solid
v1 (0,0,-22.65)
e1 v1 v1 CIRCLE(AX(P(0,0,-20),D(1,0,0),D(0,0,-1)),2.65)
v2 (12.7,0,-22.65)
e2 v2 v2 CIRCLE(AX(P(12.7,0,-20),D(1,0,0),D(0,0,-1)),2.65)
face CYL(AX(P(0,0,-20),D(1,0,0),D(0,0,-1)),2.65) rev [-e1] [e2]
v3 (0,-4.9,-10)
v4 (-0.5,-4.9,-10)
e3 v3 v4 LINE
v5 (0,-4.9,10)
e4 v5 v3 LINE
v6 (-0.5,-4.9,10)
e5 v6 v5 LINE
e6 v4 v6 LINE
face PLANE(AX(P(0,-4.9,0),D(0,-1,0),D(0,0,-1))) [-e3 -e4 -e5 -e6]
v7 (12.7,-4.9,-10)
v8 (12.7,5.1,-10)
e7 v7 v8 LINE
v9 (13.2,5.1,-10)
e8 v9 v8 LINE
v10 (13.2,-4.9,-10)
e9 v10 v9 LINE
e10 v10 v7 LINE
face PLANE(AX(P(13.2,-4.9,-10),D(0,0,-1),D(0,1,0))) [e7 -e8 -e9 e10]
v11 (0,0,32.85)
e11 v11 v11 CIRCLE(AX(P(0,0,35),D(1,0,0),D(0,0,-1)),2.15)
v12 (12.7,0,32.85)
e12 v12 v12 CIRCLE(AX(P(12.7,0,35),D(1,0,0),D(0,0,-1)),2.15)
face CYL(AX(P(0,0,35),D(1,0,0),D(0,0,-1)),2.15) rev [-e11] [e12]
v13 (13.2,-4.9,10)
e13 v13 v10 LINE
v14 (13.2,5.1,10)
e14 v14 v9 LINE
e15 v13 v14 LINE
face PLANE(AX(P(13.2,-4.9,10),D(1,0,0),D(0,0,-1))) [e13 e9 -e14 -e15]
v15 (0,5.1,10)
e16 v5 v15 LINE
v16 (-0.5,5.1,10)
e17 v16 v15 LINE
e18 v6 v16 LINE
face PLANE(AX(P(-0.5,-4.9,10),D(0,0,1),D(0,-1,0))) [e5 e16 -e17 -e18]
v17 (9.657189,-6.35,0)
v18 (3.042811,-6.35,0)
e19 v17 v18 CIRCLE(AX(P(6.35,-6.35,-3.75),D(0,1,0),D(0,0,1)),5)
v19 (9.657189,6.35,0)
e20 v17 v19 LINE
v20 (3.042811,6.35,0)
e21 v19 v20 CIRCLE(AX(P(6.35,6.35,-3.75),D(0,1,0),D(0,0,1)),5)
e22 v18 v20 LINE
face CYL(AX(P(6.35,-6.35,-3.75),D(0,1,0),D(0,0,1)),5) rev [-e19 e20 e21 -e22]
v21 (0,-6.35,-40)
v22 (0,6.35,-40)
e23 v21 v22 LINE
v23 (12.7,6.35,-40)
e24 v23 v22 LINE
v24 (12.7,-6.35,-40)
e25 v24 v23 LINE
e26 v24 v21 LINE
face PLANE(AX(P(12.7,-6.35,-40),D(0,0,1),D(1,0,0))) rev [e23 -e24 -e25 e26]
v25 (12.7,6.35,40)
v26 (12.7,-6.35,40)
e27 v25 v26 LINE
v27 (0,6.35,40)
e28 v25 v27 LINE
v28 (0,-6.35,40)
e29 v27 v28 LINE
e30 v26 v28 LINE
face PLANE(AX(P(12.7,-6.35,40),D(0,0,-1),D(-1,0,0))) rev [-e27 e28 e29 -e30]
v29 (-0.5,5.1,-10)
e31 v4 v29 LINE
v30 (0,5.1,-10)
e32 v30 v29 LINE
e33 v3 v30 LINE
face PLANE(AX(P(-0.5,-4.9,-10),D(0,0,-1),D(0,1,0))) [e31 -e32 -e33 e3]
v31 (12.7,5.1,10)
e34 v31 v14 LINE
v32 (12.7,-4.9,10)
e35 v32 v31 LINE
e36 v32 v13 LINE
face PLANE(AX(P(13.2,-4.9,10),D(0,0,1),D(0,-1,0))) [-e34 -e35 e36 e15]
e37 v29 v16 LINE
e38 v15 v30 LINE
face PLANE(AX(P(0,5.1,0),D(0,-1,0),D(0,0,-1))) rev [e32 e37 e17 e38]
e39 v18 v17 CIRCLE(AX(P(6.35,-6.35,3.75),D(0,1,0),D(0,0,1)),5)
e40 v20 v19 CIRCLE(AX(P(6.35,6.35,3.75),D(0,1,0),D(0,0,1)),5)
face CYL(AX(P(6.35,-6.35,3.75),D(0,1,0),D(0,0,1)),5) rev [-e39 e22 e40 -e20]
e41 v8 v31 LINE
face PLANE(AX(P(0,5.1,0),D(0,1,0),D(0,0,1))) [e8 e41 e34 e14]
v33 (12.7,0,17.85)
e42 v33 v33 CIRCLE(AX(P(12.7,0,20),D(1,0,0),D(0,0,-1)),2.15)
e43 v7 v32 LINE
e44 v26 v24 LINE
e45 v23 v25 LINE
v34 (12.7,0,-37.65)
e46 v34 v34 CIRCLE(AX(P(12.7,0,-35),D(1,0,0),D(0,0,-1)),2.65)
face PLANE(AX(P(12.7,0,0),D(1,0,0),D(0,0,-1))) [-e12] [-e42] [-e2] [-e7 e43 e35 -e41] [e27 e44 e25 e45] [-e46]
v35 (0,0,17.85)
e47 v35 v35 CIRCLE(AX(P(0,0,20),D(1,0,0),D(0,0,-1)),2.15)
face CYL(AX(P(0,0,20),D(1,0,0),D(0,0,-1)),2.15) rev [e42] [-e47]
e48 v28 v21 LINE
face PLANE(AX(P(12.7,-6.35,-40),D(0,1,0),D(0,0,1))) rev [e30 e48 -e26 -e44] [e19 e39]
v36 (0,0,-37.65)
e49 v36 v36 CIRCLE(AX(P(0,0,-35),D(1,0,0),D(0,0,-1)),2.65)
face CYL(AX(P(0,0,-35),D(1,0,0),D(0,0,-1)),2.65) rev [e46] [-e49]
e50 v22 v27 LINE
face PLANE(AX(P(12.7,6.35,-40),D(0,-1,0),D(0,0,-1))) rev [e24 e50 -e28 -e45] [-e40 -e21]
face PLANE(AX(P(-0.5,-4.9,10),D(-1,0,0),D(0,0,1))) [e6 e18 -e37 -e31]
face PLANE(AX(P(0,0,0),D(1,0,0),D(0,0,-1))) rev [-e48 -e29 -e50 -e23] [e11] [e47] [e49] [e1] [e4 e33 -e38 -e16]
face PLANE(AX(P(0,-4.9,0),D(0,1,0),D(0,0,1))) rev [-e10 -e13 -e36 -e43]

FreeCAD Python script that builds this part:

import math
import FreeCAD as App
import Part
import Sketcher

V = App.Vector
Q = App.Units.Quantity

doc = App.newDocument("Part")
params = doc.addObject("Spreadsheet::Sheet", "Params")
for row, (alias, value) in enumerate([
    ("sketch1_height", "80 mm"),
    ("sketch1_width", "12.7 mm"),
    ("pad1_length", "12.7 mm"),
    ("sketch2_radius", "5 mm"),
    ("sketch3_diameter", "4.3 mm"),
    ("sketch3_diameter2", "5.3 mm"),
    ("sketch4_height", "20 mm"),
    ("sketch4_width", "0.5 mm"),
    ("pad2_length", "10 mm"),
], start=1):
    params.set(f"A{row}", alias)
    params.set(f"B{row}", "=" + value)
    params.setAlias(f"B{row}", alias)

body = doc.addObject("PartDesign::Body", "Body")

# Sketch on YZ plane
sketch1 = doc.addObject("Sketcher::SketchObject", "Sketch")
body.addObject(sketch1)
sketch1.AttachmentSupport = (doc.YZ_Plane, [""])
sketch1.MapMode = "FlatFace"
sketch1.addGeometry([
    Part.LineSegment(V(6.35, 40, 0), V(-6.35, 40, 0)),
    Part.LineSegment(V(-6.35, 40, 0), V(-6.35, -40, 0)),
    Part.LineSegment(V(-6.35, -40, 0), V(6.35, -40, 0)),
    Part.LineSegment(V(6.35, -40, 0), V(6.35, 40, 0)),
], False)
sketch1.addConstraint([
    Sketcher.Constraint("Coincident", 0, 2, 1, 1),
    Sketcher.Constraint("Coincident", 1, 2, 2, 1),
    Sketcher.Constraint("Coincident", 2, 2, 3, 1),
    Sketcher.Constraint("Coincident", 3, 2, 0, 1),
    Sketcher.Constraint("Horizontal", 0),
    Sketcher.Constraint("Vertical", 1),
    Sketcher.Constraint("Horizontal", 2),
    Sketcher.Constraint("Vertical", 3),
    Sketcher.Constraint("Symmetric", 0, 2, 2, 2, -1, 1),
    Sketcher.Constraint("DistanceY", 1, 2, 1, 1, Q("80 mm")),
    Sketcher.Constraint("DistanceX", 0, 2, 0, 1, Q("12.7 mm")),
])
sketch1.setExpression("Constraints[9]", "Params.sketch1_height")
sketch1.setExpression("Constraints[10]", "Params.sketch1_width")
pad1 = doc.addObject("PartDesign::Pad", "Pad")
body.addObject(pad1)
pad1.Profile = sketch1
pad1.setExpression("Length", "Params.pad1_length")

# Sketch on XZ plane
sketch2 = doc.addObject("Sketcher::SketchObject", "Sketch001")
body.addObject(sketch2)
sketch2.AttachmentSupport = (doc.XZ_Plane, [""])
sketch2.MapMode = "FlatFace"
sketch2.AttachmentOffset = App.Placement(V(0, 0, -6.35), App.Rotation())
sketch2.addGeometry([
    Part.ArcOfCircle(Part.Circle(V(6.35, -3.75, 0), V(0, 0, 1), 5), math.radians(131.409622), math.radians(408.590378)),
    Part.ArcOfCircle(Part.Circle(V(6.35, 3.75, 0), V(0, 0, 1), 5), math.radians(-48.590378), math.radians(228.590378)),
], False)
sketch2.addConstraint([
    Sketcher.Constraint("Coincident", 0, 1, 1, 2),
    Sketcher.Constraint("Coincident", 1, 1, 0, 2),
    Sketcher.Constraint("Equal", 0, 1),
    Sketcher.Constraint("Symmetric", 0, 3, 1, 3, -1),
    Sketcher.Constraint("Radius", 0, Q("5 mm")),
    Sketcher.Constraint("DistanceY", 0, 3, 1, 3, Q("7.5 mm")),
    Sketcher.Constraint("DistanceX", -1, 1, 0, 3, Q("6.35 mm")),
])
sketch2.setExpression("Constraints[4]", "Params.sketch2_radius")
pocket1 = doc.addObject("PartDesign::Pocket", "Pocket")
body.addObject(pocket1)
pocket1.Profile = sketch2
pocket1.Type = "ThroughAll"
pocket1.Reversed = True

# Sketch on YZ plane
sketch3 = doc.addObject("Sketcher::SketchObject", "Sketch002")
body.addObject(sketch3)
sketch3.AttachmentSupport = (doc.YZ_Plane, [""])
sketch3.MapMode = "FlatFace"
sketch3.AttachmentOffset = App.Placement(V(0, 0, 12.7), App.Rotation())
sketch3.addGeometry([
    Part.Circle(V(0, 35, 0), V(0, 0, 1), 2.15),
    Part.Circle(V(0, 20, 0), V(0, 0, 1), 2.15),
    Part.Circle(V(0, -20, 0), V(0, 0, 1), 2.65),
    Part.Circle(V(0, -35, 0), V(0, 0, 1), 2.65),
], False)
sketch3.addConstraint([
    Sketcher.Constraint("Equal", 0, 1),
    Sketcher.Constraint("Equal", 2, 3),
    Sketcher.Constraint("Symmetric", 1, 3, 2, 3, -1, 1),
    Sketcher.Constraint("Symmetric", 0, 3, 3, 3, -1, 1),
    Sketcher.Constraint("PointOnObject", 0, 3, -2),
    Sketcher.Constraint("PointOnObject", 1, 3, -2),
    Sketcher.Constraint("Diameter", 0, Q("4.3 mm")),
    Sketcher.Constraint("Diameter", 2, Q("5.3 mm")),
    Sketcher.Constraint("DistanceY", -1, 1, 0, 3, Q("35 mm")),
    Sketcher.Constraint("DistanceY", -1, 1, 1, 3, Q("20 mm")),
])
sketch3.setExpression("Constraints[6]", "Params.sketch3_diameter")
sketch3.setExpression("Constraints[7]", "Params.sketch3_diameter2")
pocket2 = doc.addObject("PartDesign::Pocket", "Pocket001")
body.addObject(pocket2)
pocket2.Profile = sketch3
pocket2.Type = "ThroughAll"

# Sketch on XZ plane
sketch4 = doc.addObject("Sketcher::SketchObject", "Sketch003")
body.addObject(sketch4)
sketch4.AttachmentSupport = (doc.XZ_Plane, [""])
sketch4.MapMode = "FlatFace"
sketch4.AttachmentOffset = App.Placement(V(0, 0, -5.1), App.Rotation())
sketch4.addGeometry([
    Part.LineSegment(V(-0.5, -10, 0), V(-0.5, 10, 0)),  # 0
    Part.LineSegment(V(-0.5, 10, 0), V(0, 10, 0)),  # 1
    Part.LineSegment(V(0, 10, 0), V(0, -10, 0)),  # 2
    Part.LineSegment(V(0, -10, 0), V(-0.5, -10, 0)),  # 3
    Part.LineSegment(V(12.7, -10, 0), V(12.7, 10, 0)),  # 4
    Part.LineSegment(V(12.7, 10, 0), V(13.2, 10, 0)),  # 5
    Part.LineSegment(V(13.2, 10, 0), V(13.2, -10, 0)),  # 6
    Part.LineSegment(V(13.2, -10, 0), V(12.7, -10, 0)),  # 7
], False)
sketch4.addConstraint([
    Sketcher.Constraint("Coincident", 0, 2, 1, 1),
    Sketcher.Constraint("Coincident", 1, 2, 2, 1),
    Sketcher.Constraint("Coincident", 2, 2, 3, 1),
    Sketcher.Constraint("Coincident", 3, 2, 0, 1),
    Sketcher.Constraint("Coincident", 4, 2, 5, 1),
    Sketcher.Constraint("Coincident", 5, 2, 6, 1),
    Sketcher.Constraint("Coincident", 6, 2, 7, 1),
    Sketcher.Constraint("Coincident", 7, 2, 4, 1),
    Sketcher.Constraint("Vertical", 0),
    Sketcher.Constraint("Horizontal", 1),
    Sketcher.Constraint("Vertical", 2),
    Sketcher.Constraint("Horizontal", 3),
    Sketcher.Constraint("Vertical", 4),
    Sketcher.Constraint("Horizontal", 5),
    Sketcher.Constraint("Vertical", 6),
    Sketcher.Constraint("Horizontal", 7),
    Sketcher.Constraint("Symmetric", 1, 2, 2, 2, -1, 1),
    Sketcher.Constraint("Horizontal", 1, 2, 4, 2),
    Sketcher.Constraint("Horizontal", 3, 2, 6, 2),
    Sketcher.Constraint("Equal", 3, 5),
    Sketcher.Constraint("DistanceY", 0, 1, 0, 2, Q("20 mm")),
    Sketcher.Constraint("DistanceX", 1, 1, 1, 2, Q("0.5 mm")),
    Sketcher.Constraint("DistanceX", -1, 1, 4, 2, Q("12.7 mm")),
])
sketch4.setExpression("Constraints[20]", "Params.sketch4_height")
sketch4.setExpression("Constraints[21]", "Params.sketch4_width")
pad2 = doc.addObject("PartDesign::Pad", "Pad001")
body.addObject(pad2)
pad2.Profile = sketch4
pad2.setExpression("Length", "Params.pad2_length")

doc.recompute()
